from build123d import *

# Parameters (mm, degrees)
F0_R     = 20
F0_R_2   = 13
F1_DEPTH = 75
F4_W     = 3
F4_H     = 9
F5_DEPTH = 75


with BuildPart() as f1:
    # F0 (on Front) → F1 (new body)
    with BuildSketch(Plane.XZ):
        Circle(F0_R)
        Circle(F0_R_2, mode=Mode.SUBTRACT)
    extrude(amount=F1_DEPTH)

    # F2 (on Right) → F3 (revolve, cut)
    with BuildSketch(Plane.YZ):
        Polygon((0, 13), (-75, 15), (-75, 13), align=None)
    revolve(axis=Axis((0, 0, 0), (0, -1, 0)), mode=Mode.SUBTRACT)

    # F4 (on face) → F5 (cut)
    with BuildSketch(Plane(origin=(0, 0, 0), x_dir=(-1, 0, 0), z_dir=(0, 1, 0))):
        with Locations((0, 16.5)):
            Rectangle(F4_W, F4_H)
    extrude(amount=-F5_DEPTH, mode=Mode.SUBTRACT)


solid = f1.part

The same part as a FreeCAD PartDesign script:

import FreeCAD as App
import Part
import Sketcher
from FreeCAD import Vector

doc = App.newDocument("Part")
body = doc.addObject("PartDesign::Body", "Body")

sketch1 = doc.addObject("Sketcher::SketchObject", "Sketch")
body.addObject(sketch1)
sketch1.AttachmentSupport = (doc.XZ_Plane, [""])
sketch1.MapMode = "FlatFace"
sketch1.addGeometry(Part.Circle(Vector(0, 0, 0), Vector(0, 0, 1), 20), False)
sketch1.addGeometry(Part.Circle(Vector(0, 0, 0), Vector(0, 0, 1), 13), False)
sketch1.addConstraint(Sketcher.Constraint("Coincident", 0, 3, -1, 1))
sketch1.addConstraint(Sketcher.Constraint("Coincident", 1, 3, -1, 1))
sketch1.addConstraint(Sketcher.Constraint("Diameter", 0, 40.0))
sketch1.addConstraint(Sketcher.Constraint("Diameter", 1, 26.0))
pad1 = doc.addObject("PartDesign::Pad", "Pad")
body.addObject(pad1)
pad1.Profile = sketch1
pad1.Length = 75

sketch2 = doc.addObject("Sketcher::SketchObject", "Sketch001")
body.addObject(sketch2)
sketch2.AttachmentSupport = (doc.YZ_Plane, [""])
sketch2.MapMode = "FlatFace"
sketch2.addGeometry(Part.LineSegment(Vector(0, 13, 0), Vector(-75, 15, 0)), False)
sketch2.addGeometry(Part.LineSegment(Vector(-75, 15, 0), Vector(-75, 13, 0)), False)
sketch2.addGeometry(Part.LineSegment(Vector(-75, 13, 0), Vector(0, 13, 0)), False)
sketch2.addConstraint(Sketcher.Constraint("Coincident", 0, 2, 1, 1))
sketch2.addConstraint(Sketcher.Constraint("Coincident", 1, 2, 2, 1))
sketch2.addConstraint(Sketcher.Constraint("Coincident", 2, 2, 0, 1))
sketch2.addConstraint(Sketcher.Constraint("Vertical", 1))
sketch2.addConstraint(Sketcher.Constraint("Horizontal", 2))
sketch2.addConstraint(Sketcher.Constraint("PointOnObject", 2, 2, -2))
sketch2.addConstraint(Sketcher.Constraint("DistanceX", 2, 1, 2, 2, 75.0))
sketch2.addConstraint(Sketcher.Constraint("DistanceY", 1, 2, 1, 1, 2.0))
sketch2.addConstraint(Sketcher.Constraint("DistanceY", -1, 1, 0, 2, 15.0))
groove = doc.addObject("PartDesign::Groove", "Groove")
body.addObject(groove)
groove.Profile = sketch2
groove.ReferenceAxis = (sketch2, ["H_Axis"])
groove.Angle = 360

sketch3 = doc.addObject("Sketcher::SketchObject", "Sketch002")
body.addObject(sketch3)
sketch3.AttachmentSupport = (doc.XZ_Plane, [""])
sketch3.MapMode = "FlatFace"
sketch3.addGeometry(Part.LineSegment(Vector(1.5, 21, 0), Vector(1.5, 12, 0)), False)
sketch3.addGeometry(Part.LineSegment(Vector(1.5, 12, 0), Vector(-1.5, 12, 0)), False)
sketch3.addGeometry(Part.LineSegment(Vector(-1.5, 12, 0), Vector(-1.5, 21, 0)), False)
sketch3.addGeometry(Part.LineSegment(Vector(-1.5, 21, 0), Vector(1.5, 21, 0)), False)
sketch3.addConstraint(Sketcher.Constraint("Coincident", 0, 2, 1, 1))
sketch3.addConstraint(Sketcher.Constraint("Coincident", 1, 2, 2, 1))
sketch3.addConstraint(Sketcher.Constraint("Coincident", 2, 2, 3, 1))
sketch3.addConstraint(Sketcher.Constraint("Coincident", 3, 2, 0, 1))
sketch3.addConstraint(Sketcher.Constraint("Vertical", 0))
sketch3.addConstraint(Sketcher.Constraint("Horizontal", 1))
sketch3.addConstraint(Sketcher.Constraint("Vertical", 2))
sketch3.addConstraint(Sketcher.Constraint("Horizontal", 3))
sketch3.addConstraint(Sketcher.Constraint("DistanceX", 1, 2, 1, 1, 3.0))
sketch3.addConstraint(Sketcher.Constraint("DistanceY", 0, 2, 0, 1, 9.0))
sketch3.addConstraint(Sketcher.Constraint("DistanceY", -1, 1, 0, 2, 12.0))
sketch3.addConstraint(Sketcher.Constraint("DistanceX", -1, 1, 0, 2, 1.5))
pocket1 = doc.addObject("PartDesign::Pocket", "Pocket")
body.addObject(pocket1)
pocket1.Profile = sketch3
pocket1.Length = 75
pocket1.Reversed = True

doc.recompute()
